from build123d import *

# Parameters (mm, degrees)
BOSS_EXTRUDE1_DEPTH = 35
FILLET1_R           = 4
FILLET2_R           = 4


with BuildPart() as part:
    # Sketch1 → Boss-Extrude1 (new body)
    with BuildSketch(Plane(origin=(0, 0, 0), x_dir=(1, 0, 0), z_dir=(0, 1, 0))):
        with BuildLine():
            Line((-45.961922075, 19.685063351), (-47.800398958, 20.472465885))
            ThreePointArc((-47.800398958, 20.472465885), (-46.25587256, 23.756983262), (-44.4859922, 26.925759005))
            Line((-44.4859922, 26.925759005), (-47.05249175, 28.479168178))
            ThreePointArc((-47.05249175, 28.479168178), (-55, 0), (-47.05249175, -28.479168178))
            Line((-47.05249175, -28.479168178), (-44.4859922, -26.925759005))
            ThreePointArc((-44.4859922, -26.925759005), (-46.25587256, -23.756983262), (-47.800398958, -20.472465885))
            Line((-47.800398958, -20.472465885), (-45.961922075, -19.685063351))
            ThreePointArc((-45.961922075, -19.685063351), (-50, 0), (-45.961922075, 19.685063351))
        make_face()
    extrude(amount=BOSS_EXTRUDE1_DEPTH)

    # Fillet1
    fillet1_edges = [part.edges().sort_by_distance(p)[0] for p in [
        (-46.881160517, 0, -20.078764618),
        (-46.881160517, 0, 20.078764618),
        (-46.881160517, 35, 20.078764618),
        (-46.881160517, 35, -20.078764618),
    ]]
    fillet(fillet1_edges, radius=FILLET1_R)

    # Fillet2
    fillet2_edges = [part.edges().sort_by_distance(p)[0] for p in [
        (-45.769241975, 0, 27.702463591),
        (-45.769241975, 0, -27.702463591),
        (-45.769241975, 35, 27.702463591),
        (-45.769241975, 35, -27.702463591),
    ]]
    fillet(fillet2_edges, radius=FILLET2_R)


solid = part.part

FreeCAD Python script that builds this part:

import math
import FreeCAD as App
import Part
import Sketcher


def edges_at(feature, points):
    """Names of the edges that pass closest to the given points."""
    edges = feature.Shape.Edges
    near = lambda p: min(range(len(edges)), key=lambda i: edges[i].distToShape(Part.Vertex(*p))[0])
    return sorted({f"Edge{near(p) + 1}" for p in points})

doc = App.newDocument("Part")
body = doc.addObject("PartDesign::Body", "Body")

sketch1 = doc.addObject("Sketcher::SketchObject", "Sketch")
body.addObject(sketch1)
sketch1.AttachmentSupport = (doc.XZ_Plane, [""])
sketch1.MapMode = "FlatFace"
sketch1.addGeometry(Part.LineSegment(App.Vector(-45.961922, -19.685063, 0), App.Vector(-47.800399, -20.472466, 0)), False)
sketch1.addGeometry(Part.ArcOfCircle(Part.Circle(App.Vector(0, 0, 0), App.Vector(0, 0, 1), 52), math.radians(-156.815), math.radians(-148.815)), False)
sketch1.addGeometry(Part.LineSegment(App.Vector(-44.485992, -26.925759, 0), App.Vector(-47.052492, -28.479168, 0)), False)
sketch1.addGeometry(Part.ArcOfCircle(Part.Circle(App.Vector(0, 0, 0), App.Vector(0, 0, 1), 55), math.radians(148.815), math.radians(211.185)), False)
sketch1.addGeometry(Part.LineSegment(App.Vector(-47.052492, 28.479168, 0), App.Vector(-44.485992, 26.925759, 0)), False)
sketch1.addGeometry(Part.ArcOfCircle(Part.Circle(App.Vector(0, 0, 0), App.Vector(0, 0, 1), 52), math.radians(148.815), math.radians(156.815)), False)
sketch1.addGeometry(Part.LineSegment(App.Vector(-47.800399, 20.472466, 0), App.Vector(-45.961922, 19.685063, 0)), False)
sketch1.addGeometry(Part.ArcOfCircle(Part.Circle(App.Vector(0, 0, 0), App.Vector(0, 0, 1), 50), math.radians(156.815), math.radians(203.185)), False)
sketch1.addConstraint(Sketcher.Constraint("Coincident", 0, 2, 1, 1))
sketch1.addConstraint(Sketcher.Constraint("Coincident", 1, 2, 2, 1))
sketch1.addConstraint(Sketcher.Constraint("Coincident", 2, 2, 3, 2))
sketch1.addConstraint(Sketcher.Constraint("Coincident", 3, 1, 4, 1))
sketch1.addConstraint(Sketcher.Constraint("Coincident", 4, 2, 5, 1))
sketch1.addConstraint(Sketcher.Constraint("Coincident", 5, 2, 6, 1))
sketch1.addConstraint(Sketcher.Constraint("Coincident", 6, 2, 7, 1))
sketch1.addConstraint(Sketcher.Constraint("Coincident", 7, 2, 0, 1))
sketch1.addConstraint(Sketcher.Constraint("Coincident", 1, 3, -1, 1))
sketch1.addConstraint(Sketcher.Constraint("Coincident", 3, 3, -1, 1))
sketch1.addConstraint(Sketcher.Constraint("Coincident", 5, 3, -1, 1))
sketch1.addConstraint(Sketcher.Constraint("Coincident", 7, 3, -1, 1))
sketch1.addConstraint(Sketcher.Constraint("Equal", 1, 5))
sketch1.addConstraint(Sketcher.Constraint("Vertical", 2, 2, 3, 1))
sketch1.addConstraint(Sketcher.Constraint("Vertical", 1, 2, 4, 2))
sketch1.addConstraint(Sketcher.Constraint("Vertical", 0, 2, 5, 2))
sketch1.addConstraint(Sketcher.Constraint("Vertical", 6, 2, 7, 2))
sketch1.addConstraint(Sketcher.Constraint("Radius", 1, 52.0))
sketch1.addConstraint(Sketcher.Constraint("Radius", 3, 55.0))
sketch1.addConstraint(Sketcher.Constraint("Radius", 7, 50.0))
sketch1.addConstraint(Sketcher.Constraint("DistanceX", 0, 2, -1, 1, 47.800399))
sketch1.addConstraint(Sketcher.Constraint("DistanceX", 2, 2, 1, 2, 2.5665))
sketch1.addConstraint(Sketcher.Constraint("DistanceY", 1, 2, -1, 1, 26.925759))
sketch1.addConstraint(Sketcher.Constraint("DistanceX", 6, 2, 4, 2, 1.47593))
pad1 = doc.addObject("PartDesign::Pad", "Pad")
body.addObject(pad1)
pad1.Profile = sketch1
pad1.Length = 35
pad1.Reversed = True
doc.recompute()

fillet = doc.addObject("PartDesign::Fillet", "Fillet")
body.addObject(fillet)
fillet.Base = (pad1, edges_at(pad1, [
    (-46.881, 0, -20.079),
    (-46.881, 0, 20.079),
    (-46.881, 35, 20.079),
    (-46.881, 35, -20.079),
]))
fillet.Radius = 4
doc.recompute()

fillet2 = doc.addObject("PartDesign::Fillet", "Fillet001")
body.addObject(fillet2)
fillet2.Base = (fillet, edges_at(fillet, [
    (-45.769, 0, 27.702),
    (-45.769, 0, -27.702),
    (-45.769, 35, 27.702),
    (-45.769, 35, -27.702),
]))
fillet2.Radius = 4

doc.recompute()
